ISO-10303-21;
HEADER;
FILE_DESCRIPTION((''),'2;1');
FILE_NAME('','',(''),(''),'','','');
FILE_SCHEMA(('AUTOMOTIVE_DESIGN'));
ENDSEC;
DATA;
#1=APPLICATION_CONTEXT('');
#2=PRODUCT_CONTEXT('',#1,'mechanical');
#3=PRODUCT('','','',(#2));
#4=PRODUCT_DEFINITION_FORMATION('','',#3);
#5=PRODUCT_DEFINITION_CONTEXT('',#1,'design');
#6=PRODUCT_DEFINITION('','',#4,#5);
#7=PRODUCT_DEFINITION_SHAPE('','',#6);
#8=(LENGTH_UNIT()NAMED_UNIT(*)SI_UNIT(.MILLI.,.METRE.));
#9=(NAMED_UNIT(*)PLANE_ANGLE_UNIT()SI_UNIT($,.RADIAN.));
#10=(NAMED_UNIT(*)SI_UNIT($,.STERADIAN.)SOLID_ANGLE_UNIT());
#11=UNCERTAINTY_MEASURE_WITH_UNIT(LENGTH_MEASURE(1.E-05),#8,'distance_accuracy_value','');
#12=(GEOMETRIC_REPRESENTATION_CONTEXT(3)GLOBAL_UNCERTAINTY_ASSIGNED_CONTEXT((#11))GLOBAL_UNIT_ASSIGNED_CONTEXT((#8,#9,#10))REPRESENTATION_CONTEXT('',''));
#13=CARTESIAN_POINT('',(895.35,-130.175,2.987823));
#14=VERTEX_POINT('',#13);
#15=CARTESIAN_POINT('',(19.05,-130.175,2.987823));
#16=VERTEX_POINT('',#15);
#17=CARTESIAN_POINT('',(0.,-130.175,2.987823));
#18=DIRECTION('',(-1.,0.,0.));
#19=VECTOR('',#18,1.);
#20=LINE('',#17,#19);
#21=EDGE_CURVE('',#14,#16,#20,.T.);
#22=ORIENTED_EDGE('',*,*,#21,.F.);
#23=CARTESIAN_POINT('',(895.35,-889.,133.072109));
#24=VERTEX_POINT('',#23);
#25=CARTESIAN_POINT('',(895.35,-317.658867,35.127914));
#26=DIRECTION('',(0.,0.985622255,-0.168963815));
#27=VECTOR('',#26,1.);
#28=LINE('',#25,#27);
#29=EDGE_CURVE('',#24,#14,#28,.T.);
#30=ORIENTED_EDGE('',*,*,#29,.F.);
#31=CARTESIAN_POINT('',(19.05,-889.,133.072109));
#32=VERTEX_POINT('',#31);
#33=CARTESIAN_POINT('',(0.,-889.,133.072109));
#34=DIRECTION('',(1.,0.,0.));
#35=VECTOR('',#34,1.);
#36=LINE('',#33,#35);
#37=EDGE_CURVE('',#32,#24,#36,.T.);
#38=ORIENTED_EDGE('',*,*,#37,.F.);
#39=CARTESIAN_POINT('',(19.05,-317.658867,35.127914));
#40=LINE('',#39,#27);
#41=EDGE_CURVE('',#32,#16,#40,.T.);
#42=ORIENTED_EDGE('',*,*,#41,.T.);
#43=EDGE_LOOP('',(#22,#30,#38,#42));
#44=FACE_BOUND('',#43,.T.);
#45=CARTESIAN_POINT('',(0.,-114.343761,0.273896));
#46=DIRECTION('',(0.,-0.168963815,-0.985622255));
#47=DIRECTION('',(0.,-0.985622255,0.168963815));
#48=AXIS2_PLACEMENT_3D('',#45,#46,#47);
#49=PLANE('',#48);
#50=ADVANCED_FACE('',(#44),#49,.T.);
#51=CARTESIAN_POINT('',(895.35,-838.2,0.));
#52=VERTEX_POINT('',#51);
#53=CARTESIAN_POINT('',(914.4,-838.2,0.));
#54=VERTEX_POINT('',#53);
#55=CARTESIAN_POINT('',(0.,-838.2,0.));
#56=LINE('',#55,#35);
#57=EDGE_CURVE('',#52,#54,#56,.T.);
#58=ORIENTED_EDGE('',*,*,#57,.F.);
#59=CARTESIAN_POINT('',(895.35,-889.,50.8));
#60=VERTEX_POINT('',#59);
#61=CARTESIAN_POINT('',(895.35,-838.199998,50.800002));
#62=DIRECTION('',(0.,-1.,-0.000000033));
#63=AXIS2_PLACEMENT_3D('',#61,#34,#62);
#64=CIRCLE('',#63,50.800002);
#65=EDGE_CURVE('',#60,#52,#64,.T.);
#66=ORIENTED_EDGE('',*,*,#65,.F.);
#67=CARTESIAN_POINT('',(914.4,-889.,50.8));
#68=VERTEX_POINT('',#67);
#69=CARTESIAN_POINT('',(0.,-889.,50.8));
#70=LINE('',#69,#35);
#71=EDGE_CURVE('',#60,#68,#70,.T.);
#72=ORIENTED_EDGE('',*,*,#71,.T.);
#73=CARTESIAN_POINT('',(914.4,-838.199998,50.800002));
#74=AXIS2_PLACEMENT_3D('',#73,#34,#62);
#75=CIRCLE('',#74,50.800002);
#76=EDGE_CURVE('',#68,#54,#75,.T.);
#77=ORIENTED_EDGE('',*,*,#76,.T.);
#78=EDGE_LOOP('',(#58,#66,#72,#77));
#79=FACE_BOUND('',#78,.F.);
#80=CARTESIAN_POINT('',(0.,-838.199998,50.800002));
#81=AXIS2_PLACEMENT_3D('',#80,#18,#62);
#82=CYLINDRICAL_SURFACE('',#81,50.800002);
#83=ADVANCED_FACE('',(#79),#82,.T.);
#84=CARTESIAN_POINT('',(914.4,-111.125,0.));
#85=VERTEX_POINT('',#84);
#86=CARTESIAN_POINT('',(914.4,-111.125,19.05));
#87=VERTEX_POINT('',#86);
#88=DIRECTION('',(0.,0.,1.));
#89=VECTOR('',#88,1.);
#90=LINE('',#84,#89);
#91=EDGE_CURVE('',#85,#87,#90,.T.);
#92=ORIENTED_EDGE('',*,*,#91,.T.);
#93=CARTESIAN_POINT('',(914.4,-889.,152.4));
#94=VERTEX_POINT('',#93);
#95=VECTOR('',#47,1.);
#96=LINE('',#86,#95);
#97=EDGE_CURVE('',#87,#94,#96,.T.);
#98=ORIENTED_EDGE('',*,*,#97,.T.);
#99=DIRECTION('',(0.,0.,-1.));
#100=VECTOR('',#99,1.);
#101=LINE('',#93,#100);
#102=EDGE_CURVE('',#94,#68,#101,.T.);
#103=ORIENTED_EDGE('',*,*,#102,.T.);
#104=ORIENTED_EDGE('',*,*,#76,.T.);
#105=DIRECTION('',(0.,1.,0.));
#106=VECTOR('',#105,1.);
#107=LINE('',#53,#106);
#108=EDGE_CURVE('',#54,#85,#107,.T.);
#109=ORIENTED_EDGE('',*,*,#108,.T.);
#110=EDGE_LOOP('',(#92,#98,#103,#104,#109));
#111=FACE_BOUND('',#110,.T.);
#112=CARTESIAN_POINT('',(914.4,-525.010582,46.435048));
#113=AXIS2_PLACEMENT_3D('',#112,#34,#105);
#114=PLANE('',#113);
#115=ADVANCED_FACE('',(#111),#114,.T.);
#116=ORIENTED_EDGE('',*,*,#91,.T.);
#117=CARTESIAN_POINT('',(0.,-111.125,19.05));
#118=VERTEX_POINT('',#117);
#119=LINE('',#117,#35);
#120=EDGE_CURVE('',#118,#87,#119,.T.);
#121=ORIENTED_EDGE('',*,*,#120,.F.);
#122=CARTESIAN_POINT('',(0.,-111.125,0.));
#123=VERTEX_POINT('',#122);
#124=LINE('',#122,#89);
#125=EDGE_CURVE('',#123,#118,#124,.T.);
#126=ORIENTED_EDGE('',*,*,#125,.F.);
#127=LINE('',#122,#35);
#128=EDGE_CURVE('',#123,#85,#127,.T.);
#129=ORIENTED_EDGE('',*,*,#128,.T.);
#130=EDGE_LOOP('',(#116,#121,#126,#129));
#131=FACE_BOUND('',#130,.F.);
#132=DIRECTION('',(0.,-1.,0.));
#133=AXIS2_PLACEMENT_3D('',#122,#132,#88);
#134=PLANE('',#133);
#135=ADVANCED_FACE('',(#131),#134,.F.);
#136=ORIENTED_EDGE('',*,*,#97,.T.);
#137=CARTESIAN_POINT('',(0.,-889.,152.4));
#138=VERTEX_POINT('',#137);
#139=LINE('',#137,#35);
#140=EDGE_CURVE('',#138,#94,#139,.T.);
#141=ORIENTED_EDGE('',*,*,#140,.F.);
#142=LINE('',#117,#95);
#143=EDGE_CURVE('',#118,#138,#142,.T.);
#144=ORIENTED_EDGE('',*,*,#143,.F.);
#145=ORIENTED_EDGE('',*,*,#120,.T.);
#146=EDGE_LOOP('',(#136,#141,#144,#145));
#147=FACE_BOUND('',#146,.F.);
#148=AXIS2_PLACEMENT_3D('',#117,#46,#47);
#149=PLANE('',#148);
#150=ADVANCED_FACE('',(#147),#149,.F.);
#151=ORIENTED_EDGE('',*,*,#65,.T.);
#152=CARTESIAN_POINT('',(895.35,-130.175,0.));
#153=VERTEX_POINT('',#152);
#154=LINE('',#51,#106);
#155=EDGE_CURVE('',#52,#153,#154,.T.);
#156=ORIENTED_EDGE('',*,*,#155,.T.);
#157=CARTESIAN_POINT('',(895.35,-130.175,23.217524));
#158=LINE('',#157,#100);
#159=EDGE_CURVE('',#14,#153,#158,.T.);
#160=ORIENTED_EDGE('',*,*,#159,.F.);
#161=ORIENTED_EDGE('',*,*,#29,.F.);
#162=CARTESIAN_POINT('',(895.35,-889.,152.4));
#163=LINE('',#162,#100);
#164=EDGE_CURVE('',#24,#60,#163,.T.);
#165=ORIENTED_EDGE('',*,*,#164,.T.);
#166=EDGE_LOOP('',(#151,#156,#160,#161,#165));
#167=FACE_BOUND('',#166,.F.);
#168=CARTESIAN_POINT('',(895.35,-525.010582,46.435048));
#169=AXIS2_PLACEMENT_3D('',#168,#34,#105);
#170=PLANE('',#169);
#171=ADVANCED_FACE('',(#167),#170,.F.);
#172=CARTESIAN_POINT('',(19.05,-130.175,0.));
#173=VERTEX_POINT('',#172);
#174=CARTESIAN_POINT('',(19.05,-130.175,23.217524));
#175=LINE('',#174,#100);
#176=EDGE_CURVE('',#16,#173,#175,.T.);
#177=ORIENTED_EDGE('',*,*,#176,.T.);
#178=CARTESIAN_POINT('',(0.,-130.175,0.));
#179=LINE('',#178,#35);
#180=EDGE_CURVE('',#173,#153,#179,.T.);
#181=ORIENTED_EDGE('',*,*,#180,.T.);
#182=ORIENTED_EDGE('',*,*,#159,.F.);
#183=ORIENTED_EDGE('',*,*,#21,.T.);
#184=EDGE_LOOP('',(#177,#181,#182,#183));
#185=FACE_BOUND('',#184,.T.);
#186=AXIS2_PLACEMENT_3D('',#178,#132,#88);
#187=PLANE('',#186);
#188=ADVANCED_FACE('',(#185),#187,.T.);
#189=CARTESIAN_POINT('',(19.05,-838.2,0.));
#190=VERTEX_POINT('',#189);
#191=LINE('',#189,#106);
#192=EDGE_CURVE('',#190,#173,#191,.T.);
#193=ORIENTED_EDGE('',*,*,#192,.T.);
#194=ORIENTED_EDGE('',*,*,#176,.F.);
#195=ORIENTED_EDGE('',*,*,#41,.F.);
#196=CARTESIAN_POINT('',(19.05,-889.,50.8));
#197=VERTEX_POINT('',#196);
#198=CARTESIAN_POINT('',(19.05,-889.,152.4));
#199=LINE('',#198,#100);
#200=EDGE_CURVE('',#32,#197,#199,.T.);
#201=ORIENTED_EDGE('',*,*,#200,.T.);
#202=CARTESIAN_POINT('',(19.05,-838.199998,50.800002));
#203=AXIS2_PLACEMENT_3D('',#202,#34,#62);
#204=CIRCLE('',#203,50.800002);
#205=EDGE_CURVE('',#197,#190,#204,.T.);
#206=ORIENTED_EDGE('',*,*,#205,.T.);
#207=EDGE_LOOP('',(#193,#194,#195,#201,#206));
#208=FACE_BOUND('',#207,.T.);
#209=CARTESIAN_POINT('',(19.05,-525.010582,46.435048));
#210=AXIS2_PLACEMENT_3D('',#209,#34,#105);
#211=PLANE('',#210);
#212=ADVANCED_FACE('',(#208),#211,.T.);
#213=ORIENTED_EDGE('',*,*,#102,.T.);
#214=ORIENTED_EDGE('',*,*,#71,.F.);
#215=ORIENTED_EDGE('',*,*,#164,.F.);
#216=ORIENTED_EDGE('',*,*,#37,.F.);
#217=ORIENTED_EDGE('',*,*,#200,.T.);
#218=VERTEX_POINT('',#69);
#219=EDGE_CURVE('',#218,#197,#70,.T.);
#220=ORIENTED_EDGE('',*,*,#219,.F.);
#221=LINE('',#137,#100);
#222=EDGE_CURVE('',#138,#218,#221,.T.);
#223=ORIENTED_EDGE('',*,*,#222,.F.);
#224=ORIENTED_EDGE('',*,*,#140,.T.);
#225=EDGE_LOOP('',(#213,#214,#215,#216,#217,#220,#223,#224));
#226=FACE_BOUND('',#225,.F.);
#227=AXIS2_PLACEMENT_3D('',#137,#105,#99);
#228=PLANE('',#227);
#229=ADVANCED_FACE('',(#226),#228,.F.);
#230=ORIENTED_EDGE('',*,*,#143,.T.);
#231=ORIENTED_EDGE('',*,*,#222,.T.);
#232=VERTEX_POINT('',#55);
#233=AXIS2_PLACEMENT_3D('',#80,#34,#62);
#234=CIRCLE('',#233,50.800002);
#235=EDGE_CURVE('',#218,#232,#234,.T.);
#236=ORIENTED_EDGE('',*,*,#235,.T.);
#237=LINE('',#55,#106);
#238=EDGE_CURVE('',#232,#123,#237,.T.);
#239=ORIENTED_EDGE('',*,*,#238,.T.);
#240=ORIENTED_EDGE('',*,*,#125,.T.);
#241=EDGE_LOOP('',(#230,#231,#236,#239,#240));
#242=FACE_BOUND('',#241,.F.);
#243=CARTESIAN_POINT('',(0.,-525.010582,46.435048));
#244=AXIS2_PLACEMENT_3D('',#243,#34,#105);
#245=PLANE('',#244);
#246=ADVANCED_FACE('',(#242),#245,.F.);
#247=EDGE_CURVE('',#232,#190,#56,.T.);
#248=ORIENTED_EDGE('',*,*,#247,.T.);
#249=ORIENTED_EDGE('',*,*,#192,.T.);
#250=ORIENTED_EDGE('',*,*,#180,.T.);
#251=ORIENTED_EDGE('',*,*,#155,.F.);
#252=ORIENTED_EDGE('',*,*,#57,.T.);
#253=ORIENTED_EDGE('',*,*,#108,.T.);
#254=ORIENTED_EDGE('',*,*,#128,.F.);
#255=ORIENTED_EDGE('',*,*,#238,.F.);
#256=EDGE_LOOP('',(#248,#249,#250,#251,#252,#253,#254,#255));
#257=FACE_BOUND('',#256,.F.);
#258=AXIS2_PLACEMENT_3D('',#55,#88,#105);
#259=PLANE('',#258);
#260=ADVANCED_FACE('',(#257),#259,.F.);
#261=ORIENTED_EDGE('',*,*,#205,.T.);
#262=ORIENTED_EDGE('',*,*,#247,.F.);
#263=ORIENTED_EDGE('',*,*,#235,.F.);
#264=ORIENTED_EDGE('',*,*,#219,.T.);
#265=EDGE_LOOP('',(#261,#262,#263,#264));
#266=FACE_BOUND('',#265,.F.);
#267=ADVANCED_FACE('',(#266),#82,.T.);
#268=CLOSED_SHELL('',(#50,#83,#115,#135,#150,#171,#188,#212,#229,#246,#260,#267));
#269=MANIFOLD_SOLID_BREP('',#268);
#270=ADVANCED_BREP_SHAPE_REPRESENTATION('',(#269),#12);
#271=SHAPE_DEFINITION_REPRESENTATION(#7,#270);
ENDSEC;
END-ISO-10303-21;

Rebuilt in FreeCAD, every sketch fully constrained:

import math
import FreeCAD as App
import Part
import Sketcher

V = App.Vector
Q = App.Units.Quantity


def faces_at(feature, points):
    """Names of the faces that lie closest to the given points."""
    faces = feature.Shape.Faces
    near = lambda p: min(range(len(faces)), key=lambda i: faces[i].distToShape(Part.Vertex(*p))[0])
    return sorted({f"Face{near(p) + 1}" for p in points})

doc = App.newDocument("Part")
params = doc.addObject("Spreadsheet::Sheet", "Params")
for row, (alias, value) in enumerate([
    ("sketch1_radius", "2.0000001 in"),
    ("sketch1_height", "4 in"),
    ("sketch1_height2", "0.75 in"),
    ("sketch1_width", "28.625 in"),
    ("pad1_length", "36 in"),
    ("thickness_wall", "0.75 in"),
], start=1):
    params.set(f"A{row}", alias)
    params.set(f"B{row}", "=" + value)
    params.setAlias(f"B{row}", alias)

body = doc.addObject("PartDesign::Body", "Body")

sketch1 = body.newObject("Sketcher::SketchObject", "Sketch")
sketch1.AttachmentSupport = (doc.getObject("YZ_Plane"), [""])
sketch1.MapMode = "FlatFace"
sketch1.addGeometry([
    Part.LineSegment(V(-889, 152.4, 0), V(-889, 50.8, 0)),
    Part.ArcOfCircle(Part.Circle(V(-838.199998, 50.800002, 0), V(0, 0, 1), 50.800002), math.radians(-179.999998), math.radians(-90.000002)),
    Part.LineSegment(V(-838.2, 0, 0), V(-111.125, 0, 0)),
    Part.LineSegment(V(-111.125, 0, 0), V(-111.125, 19.05, 0)),
    Part.LineSegment(V(-111.125, 19.05, 0), V(-889, 152.4, 0)),
], False)
sketch1.addConstraint([
    Sketcher.Constraint("Tangent", 0, 2, 1, 1),
    Sketcher.Constraint("Tangent", 1, 2, 2, 1),
    Sketcher.Constraint("Coincident", 2, 2, 3, 1),
    Sketcher.Constraint("Coincident", 3, 2, 4, 1),
    Sketcher.Constraint("Coincident", 4, 2, 0, 1),
    Sketcher.Constraint("Vertical", 0),
    Sketcher.Constraint("Horizontal", 2),
    Sketcher.Constraint("Vertical", 3),
    Sketcher.Constraint("PointOnObject", 1, 2, -1),
    Sketcher.Constraint("Radius", 1, Q("2.0000001 in")),
    Sketcher.Constraint("DistanceY", 0, 2, 0, 1, Q("4 in")),
    Sketcher.Constraint("DistanceX", 1, 3, -1, 1, Q("32.9999999 in")),
    Sketcher.Constraint("DistanceY", 3, 1, 3, 2, Q("0.75 in")),
    Sketcher.Constraint("DistanceX", 2, 1, 2, 2, Q("28.625 in")),
])
sketch1.setExpression("Constraints[9]", "Params.sketch1_radius")
sketch1.setExpression("Constraints[10]", "Params.sketch1_height")
sketch1.setExpression("Constraints[12]", "Params.sketch1_height2")
sketch1.setExpression("Constraints[13]", "Params.sketch1_width")
pad1 = body.newObject("PartDesign::Pad", "Pad")
pad1.Profile = sketch1
pad1.setExpression("Length", "Params.pad1_length")
doc.recompute()

thickness = body.newObject("PartDesign::Thickness", "Thickness")
thickness.Base = (pad1, faces_at(pad1, [(457.2, -474.663, 0), (457.2, -874.121, 14.879), (457.2, -889, 101.6)]))
thickness.setExpression("Value", "Params.thickness_wall")
thickness.Reversed = True
thickness.Join = "Arc"

doc.recompute()
